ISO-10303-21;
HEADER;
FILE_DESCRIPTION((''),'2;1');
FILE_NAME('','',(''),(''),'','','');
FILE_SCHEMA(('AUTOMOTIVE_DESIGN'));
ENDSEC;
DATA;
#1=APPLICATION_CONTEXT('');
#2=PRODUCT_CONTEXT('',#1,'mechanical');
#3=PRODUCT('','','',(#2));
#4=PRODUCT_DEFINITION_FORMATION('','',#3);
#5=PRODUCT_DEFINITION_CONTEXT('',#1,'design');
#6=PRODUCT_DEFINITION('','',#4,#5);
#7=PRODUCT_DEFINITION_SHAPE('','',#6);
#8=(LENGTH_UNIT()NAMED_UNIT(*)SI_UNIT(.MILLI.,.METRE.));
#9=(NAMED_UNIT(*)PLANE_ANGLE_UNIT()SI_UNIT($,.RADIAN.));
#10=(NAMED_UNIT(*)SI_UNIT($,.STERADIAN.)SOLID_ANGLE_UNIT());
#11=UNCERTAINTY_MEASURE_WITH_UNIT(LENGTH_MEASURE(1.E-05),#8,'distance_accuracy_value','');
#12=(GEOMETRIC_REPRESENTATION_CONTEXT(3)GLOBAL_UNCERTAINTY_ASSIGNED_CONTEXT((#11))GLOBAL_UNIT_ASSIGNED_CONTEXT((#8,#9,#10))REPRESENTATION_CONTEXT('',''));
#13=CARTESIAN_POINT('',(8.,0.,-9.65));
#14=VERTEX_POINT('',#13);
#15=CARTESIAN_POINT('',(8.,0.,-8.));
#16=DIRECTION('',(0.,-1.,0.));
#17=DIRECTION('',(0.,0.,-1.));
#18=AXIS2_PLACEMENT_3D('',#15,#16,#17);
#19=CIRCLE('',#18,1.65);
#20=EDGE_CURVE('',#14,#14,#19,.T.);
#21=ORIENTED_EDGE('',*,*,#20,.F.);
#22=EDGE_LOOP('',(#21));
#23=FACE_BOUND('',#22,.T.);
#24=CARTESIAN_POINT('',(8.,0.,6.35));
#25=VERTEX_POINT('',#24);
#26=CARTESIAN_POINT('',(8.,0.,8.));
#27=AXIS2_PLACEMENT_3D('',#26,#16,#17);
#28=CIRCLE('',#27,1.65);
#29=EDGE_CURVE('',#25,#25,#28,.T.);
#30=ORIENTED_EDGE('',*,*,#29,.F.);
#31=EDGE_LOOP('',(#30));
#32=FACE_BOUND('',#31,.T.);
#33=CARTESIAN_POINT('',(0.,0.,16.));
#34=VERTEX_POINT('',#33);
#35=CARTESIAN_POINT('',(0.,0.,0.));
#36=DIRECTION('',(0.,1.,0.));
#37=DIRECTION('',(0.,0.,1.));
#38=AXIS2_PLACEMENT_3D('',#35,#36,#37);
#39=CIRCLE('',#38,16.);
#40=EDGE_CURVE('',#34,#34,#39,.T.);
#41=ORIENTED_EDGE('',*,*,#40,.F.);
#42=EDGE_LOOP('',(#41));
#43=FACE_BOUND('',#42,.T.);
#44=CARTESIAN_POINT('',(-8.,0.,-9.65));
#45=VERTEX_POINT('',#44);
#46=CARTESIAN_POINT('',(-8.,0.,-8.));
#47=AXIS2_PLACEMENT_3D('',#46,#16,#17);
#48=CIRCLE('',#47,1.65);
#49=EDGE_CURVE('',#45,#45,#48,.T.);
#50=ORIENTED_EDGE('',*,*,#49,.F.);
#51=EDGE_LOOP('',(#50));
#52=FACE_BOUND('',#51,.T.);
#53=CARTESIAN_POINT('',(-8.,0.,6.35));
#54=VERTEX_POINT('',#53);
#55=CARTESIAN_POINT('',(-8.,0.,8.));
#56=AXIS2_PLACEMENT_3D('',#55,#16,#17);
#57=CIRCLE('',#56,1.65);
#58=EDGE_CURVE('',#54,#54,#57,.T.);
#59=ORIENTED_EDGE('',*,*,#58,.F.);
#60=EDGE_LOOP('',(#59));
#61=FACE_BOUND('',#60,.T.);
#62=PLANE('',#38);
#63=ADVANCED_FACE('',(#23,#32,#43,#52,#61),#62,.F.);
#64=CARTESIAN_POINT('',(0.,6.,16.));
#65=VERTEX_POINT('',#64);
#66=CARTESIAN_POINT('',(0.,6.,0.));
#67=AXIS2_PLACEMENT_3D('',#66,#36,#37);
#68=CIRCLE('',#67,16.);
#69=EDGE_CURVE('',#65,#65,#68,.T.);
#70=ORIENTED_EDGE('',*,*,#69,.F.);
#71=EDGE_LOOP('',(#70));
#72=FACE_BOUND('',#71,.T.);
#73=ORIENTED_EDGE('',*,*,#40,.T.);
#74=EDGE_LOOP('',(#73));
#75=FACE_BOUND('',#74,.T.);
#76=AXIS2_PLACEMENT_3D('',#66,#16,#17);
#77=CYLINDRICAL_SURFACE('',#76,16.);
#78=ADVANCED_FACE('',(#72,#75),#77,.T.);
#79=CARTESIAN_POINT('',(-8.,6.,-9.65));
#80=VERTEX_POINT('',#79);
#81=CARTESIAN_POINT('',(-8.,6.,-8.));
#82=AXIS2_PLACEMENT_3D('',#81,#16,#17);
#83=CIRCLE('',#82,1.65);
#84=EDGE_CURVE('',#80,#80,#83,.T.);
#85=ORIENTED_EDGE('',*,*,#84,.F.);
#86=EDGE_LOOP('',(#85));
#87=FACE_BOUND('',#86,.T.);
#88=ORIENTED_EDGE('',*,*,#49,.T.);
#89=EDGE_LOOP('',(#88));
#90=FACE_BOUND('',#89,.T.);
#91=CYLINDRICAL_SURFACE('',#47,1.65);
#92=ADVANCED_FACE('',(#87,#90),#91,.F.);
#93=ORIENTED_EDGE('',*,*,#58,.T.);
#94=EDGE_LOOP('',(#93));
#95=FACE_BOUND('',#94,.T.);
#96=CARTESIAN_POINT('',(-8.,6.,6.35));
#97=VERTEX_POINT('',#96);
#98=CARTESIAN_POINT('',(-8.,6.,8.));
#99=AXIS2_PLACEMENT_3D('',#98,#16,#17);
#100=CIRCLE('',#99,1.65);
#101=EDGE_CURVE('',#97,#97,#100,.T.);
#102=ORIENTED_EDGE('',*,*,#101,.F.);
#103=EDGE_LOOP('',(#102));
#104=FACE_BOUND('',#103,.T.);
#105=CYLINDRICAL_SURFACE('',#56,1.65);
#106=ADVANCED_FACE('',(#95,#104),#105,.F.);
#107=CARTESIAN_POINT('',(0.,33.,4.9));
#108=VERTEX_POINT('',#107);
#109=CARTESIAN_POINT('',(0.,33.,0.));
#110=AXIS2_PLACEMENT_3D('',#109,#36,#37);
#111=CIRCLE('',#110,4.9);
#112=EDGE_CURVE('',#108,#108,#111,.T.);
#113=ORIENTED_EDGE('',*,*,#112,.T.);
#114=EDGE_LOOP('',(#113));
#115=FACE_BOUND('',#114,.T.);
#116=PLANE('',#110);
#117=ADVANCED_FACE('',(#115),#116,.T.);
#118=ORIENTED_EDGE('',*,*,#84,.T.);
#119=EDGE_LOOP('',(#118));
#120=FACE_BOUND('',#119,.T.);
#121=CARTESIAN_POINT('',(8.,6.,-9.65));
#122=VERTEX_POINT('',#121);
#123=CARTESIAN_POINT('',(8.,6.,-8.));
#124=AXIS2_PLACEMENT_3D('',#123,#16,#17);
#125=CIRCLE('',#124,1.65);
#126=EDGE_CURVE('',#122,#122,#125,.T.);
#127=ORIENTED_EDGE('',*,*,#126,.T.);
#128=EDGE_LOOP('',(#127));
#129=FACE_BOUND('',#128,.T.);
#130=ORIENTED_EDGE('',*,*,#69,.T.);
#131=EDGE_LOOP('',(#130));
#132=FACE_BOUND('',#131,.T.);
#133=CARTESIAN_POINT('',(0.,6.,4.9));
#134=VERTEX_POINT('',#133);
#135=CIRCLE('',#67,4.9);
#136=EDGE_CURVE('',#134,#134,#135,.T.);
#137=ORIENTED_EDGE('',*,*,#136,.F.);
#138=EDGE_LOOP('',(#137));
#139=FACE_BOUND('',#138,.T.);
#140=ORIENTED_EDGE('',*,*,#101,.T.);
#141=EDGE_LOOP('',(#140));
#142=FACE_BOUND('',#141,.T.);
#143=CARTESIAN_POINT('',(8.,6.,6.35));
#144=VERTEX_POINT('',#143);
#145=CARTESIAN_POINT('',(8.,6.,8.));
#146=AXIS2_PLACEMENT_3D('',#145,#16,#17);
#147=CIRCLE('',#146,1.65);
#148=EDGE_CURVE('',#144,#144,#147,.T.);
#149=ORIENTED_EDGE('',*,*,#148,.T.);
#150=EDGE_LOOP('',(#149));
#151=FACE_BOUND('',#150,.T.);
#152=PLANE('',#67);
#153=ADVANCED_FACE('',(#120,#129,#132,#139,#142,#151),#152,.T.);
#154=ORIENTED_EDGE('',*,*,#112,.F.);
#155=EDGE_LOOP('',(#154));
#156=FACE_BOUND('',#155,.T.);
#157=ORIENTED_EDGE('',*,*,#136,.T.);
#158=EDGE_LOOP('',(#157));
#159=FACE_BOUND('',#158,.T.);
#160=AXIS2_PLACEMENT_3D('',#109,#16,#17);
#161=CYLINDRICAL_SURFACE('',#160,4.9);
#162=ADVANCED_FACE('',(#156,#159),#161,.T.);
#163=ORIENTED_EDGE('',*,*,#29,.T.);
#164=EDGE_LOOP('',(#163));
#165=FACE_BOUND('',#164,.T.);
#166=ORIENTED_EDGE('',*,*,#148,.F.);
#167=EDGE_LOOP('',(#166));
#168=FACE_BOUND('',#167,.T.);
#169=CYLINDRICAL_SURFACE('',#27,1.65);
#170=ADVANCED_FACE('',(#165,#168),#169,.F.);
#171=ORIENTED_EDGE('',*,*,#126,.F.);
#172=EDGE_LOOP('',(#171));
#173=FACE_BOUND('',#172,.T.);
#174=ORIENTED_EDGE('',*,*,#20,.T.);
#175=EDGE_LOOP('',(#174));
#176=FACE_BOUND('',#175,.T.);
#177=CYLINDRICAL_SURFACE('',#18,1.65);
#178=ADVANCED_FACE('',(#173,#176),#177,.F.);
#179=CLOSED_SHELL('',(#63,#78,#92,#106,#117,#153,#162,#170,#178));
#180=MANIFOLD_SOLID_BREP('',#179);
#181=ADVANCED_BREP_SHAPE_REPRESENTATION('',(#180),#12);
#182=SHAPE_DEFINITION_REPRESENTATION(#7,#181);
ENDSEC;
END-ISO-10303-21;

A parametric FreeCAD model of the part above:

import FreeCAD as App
import Part
import Sketcher
Q = App.Units.Quantity

doc = App.newDocument("Part")
params = doc.addObject("Spreadsheet::Sheet", "Params")
for row, (alias, value) in enumerate([
    ("sketch1_diameter", "32 mm"),
    ("pad1_length", "6 mm"),
    ("sketch2_diameter", "3.3 mm"),
    ("hole_diameter", "3.3 mm"),
    ("sketch3_diameter", "9.8 mm"),
    ("pad2_length", "27 mm"),
], start=1):
    params.set(f"A{row}", alias)
    params.set(f"B{row}", "=" + value)
    params.setAlias(f"B{row}", alias)

body = doc.addObject("PartDesign::Body", "Body")

sketch1 = body.newObject("Sketcher::SketchObject", "Sketch")
sketch1.AttachmentSupport = (doc.getObject("XZ_Plane"), [""])
sketch1.MapMode = "FlatFace"
sketch1.addGeometry(Part.Circle(App.Vector(0, 0, 0), App.Vector(0, 0, 1), 16), False)
sketch1.addConstraint(Sketcher.Constraint("Coincident", 0, 3, -1, 1))
sketch1.addConstraint(Sketcher.Constraint("Diameter", 0, Q("32 mm")))
sketch1.setExpression("Constraints[1]", "Params.sketch1_diameter")
pad1 = body.newObject("PartDesign::Pad", "Pad")
pad1.Profile = sketch1
pad1.setExpression("Length", "Params.pad1_length")
pad1.Reversed = True

sketch2 = body.newObject("Sketcher::SketchObject", "Sketch001")
sketch2.AttachmentSupport = (doc.getObject("XZ_Plane"), [""])
sketch2.MapMode = "FlatFace"
sketch2.addGeometry(Part.Circle(App.Vector(8, -8, 0), App.Vector(0, 0, 1), 1.65), False)
sketch2.addGeometry(Part.Circle(App.Vector(8, 8, 0), App.Vector(0, 0, 1), 1.65), False)
sketch2.addGeometry(Part.Circle(App.Vector(-8, 8, 0), App.Vector(0, 0, 1), 1.65), False)
sketch2.addGeometry(Part.Circle(App.Vector(-8, -8, 0), App.Vector(0, 0, 1), 1.65), False)
sketch2.addConstraint(Sketcher.Constraint("Equal", 0, 1))
sketch2.addConstraint(Sketcher.Constraint("Equal", 1, 2))
sketch2.addConstraint(Sketcher.Constraint("Equal", 2, 3))
sketch2.addConstraint(Sketcher.Constraint("Symmetric", 0, 3, 2, 3, -1, 1))
sketch2.addConstraint(Sketcher.Constraint("Symmetric", 1, 3, 3, 3, -1, 1))
sketch2.addConstraint(Sketcher.Constraint("Symmetric", 1, 3, 2, 3, -2))
sketch2.addConstraint(Sketcher.Constraint("Diameter", 0, Q("3.3 mm")))
sketch2.addConstraint(Sketcher.Constraint("DistanceX", -1, 1, 0, 3, Q("8 mm")))
sketch2.addConstraint(Sketcher.Constraint("DistanceY", 0, 3, -1, 1, Q("8 mm")))
sketch2.setExpression("Constraints[6]", "Params.sketch2_diameter")
doc.recompute()
hole = body.newObject("PartDesign::Hole", "Hole")
hole.Profile = sketch2
hole.ThreadType = "None"
hole.setExpression("Diameter", "Params.hole_diameter")
hole.DepthType = "ThroughAll"

sketch3 = body.newObject("Sketcher::SketchObject", "Sketch002")
sketch3.AttachmentSupport = (doc.getObject("XZ_Plane"), [""])
sketch3.MapMode = "FlatFace"
sketch3.AttachmentOffset = App.Placement(App.Vector(0, 0, -6), App.Rotation())
sketch3.addGeometry(Part.Circle(App.Vector(0, 0, 0), App.Vector(0, 0, 1), 4.9), False)
sketch3.addConstraint(Sketcher.Constraint("Coincident", 0, 3, -1, 1))
sketch3.addConstraint(Sketcher.Constraint("Diameter", 0, Q("9.8 mm")))
sketch3.setExpression("Constraints[1]", "Params.sketch3_diameter")
pad2 = body.newObject("PartDesign::Pad", "Pad001")
pad2.Profile = sketch3
pad2.setExpression("Length", "Params.pad2_length")
pad2.Reversed = True

doc.recompute()
